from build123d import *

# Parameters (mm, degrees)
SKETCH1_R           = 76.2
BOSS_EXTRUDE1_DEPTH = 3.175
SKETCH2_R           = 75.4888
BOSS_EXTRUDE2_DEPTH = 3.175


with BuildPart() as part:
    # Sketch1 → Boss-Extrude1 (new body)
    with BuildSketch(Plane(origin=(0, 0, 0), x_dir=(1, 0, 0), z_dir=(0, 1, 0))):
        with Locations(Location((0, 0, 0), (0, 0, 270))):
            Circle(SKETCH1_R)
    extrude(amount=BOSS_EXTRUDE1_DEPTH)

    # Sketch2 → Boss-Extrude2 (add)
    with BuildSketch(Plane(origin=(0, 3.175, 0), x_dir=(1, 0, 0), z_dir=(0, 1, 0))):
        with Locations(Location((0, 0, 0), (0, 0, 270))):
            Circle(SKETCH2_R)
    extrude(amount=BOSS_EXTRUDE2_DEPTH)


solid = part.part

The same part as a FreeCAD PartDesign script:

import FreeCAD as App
import Part
import Sketcher
from FreeCAD import Vector
Q = App.Units.Quantity

doc = App.newDocument("Part")
body = doc.addObject("PartDesign::Body", "Body")

# Sketch on XZ plane
sketch1 = body.newObject("Sketcher::SketchObject", "Sketch")
sketch1.AttachmentSupport = (doc.getObject("XZ_Plane"), [""])
sketch1.MapMode = "FlatFace"
sketch1.addGeometry(Part.Circle(Vector(0, 0, 0), Vector(0, 0, 1), 76.2), False)
sketch1.addConstraint([
    Sketcher.Constraint("Coincident", 0, 3, -1, 1),
    Sketcher.Constraint("Diameter", 0, Q("6 in")),
])
pad1 = body.newObject("PartDesign::Pad", "Pad")
pad1.Profile = sketch1
pad1.Length = Q("0.125 in")
pad1.Reversed = True

# Sketch on XZ plane
sketch2 = body.newObject("Sketcher::SketchObject", "Sketch001")
sketch2.AttachmentSupport = (doc.getObject("XZ_Plane"), [""])
sketch2.MapMode = "FlatFace"
sketch2.AttachmentOffset = App.Placement(Vector(0, 0, -0.125 * 25.4), App.Rotation())
sketch2.addGeometry(Part.Circle(Vector(0, 0, 0), Vector(0, 0, 1), 75.4888), False)
sketch2.addConstraint([
    Sketcher.Constraint("Coincident", 0, 3, -1, 1),
    Sketcher.Constraint("Diameter", 0, Q("5.944 in")),
])
pad2 = body.newObject("PartDesign::Pad", "Pad001")
pad2.Profile = sketch2
pad2.Length = Q("0.125 in")
pad2.Reversed = True

doc.recompute()
